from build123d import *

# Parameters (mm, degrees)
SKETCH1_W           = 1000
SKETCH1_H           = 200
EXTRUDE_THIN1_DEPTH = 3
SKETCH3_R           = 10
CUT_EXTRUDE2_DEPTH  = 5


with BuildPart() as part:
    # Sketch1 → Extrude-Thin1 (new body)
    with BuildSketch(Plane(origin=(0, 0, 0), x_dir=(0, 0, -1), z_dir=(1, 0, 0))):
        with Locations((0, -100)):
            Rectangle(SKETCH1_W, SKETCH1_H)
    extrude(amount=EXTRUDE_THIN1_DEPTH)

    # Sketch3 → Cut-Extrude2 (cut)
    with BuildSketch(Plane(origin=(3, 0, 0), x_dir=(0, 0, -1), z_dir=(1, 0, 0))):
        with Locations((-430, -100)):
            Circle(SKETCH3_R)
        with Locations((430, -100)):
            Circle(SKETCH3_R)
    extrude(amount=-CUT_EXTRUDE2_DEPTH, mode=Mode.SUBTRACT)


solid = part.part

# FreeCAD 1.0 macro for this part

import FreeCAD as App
import Part
import Sketcher

V = App.Vector
Q = App.Units.Quantity


def add_polygon(sketch, points):
    """Adds a closed chain of lines whose ends are joined by coincident constraints."""
    first, n = sketch.GeometryCount, len(points)
    for a, b in zip(points, points[1:] + points[:1]):
        sketch.addGeometry(Part.LineSegment(App.Vector(*a, 0), App.Vector(*b, 0)), False)
    for i in range(n):
        sketch.addConstraint(Sketcher.Constraint("Coincident", first + i, 2, first + (i + 1) % n, 1))

doc = App.newDocument("Part")
body = doc.addObject("PartDesign::Body", "Body")

sketch1 = body.newObject("Sketcher::SketchObject", "Sketch")
sketch1.AttachmentSupport = (doc.getObject("YZ_Plane"), [""])
sketch1.MapMode = "FlatFace"
add_polygon(sketch1, [(0, 500), (-200, 500), (-200, -500), (0, -500)])
sketch1.addConstraint([
    Sketcher.Constraint("Horizontal", 0),
    Sketcher.Constraint("Vertical", 1),
    Sketcher.Constraint("Horizontal", 2),
    Sketcher.Constraint("Vertical", 3),
    Sketcher.Constraint("Symmetric", 2, 2, 3, 2, -1, 1),
    Sketcher.Constraint("DistanceX", 0, 2, 0, 1, Q("200 mm")),
    Sketcher.Constraint("DistanceY", 1, 2, 1, 1, Q("1000 mm")),
])
pad1 = body.newObject("PartDesign::Pad", "Pad")
pad1.Profile = sketch1
pad1.Length = 3

sketch2 = body.newObject("Sketcher::SketchObject", "Sketch001")
sketch2.AttachmentSupport = (doc.getObject("YZ_Plane"), [""])
sketch2.MapMode = "FlatFace"
sketch2.AttachmentOffset = App.Placement(V(0, 0, 3), App.Rotation())
sketch2.addGeometry([
    Part.Circle(V(-100, 430, 0), V(0, 0, 1), 10),
    Part.Circle(V(-100, -430, 0), V(0, 0, 1), 10),
], False)
sketch2.addConstraint([
    Sketcher.Constraint("Equal", 0, 1),
    Sketcher.Constraint("Symmetric", 0, 3, 1, 3, -1),
    Sketcher.Constraint("Diameter", 0, Q("20 mm")),
    Sketcher.Constraint("DistanceX", 0, 3, -1, 1, Q("100 mm")),
    Sketcher.Constraint("DistanceY", -1, 1, 0, 3, Q("430 mm")),
])
pocket1 = body.newObject("PartDesign::Pocket", "Pocket")
pocket1.Profile = sketch2
pocket1.Length = 5

doc.recompute()
